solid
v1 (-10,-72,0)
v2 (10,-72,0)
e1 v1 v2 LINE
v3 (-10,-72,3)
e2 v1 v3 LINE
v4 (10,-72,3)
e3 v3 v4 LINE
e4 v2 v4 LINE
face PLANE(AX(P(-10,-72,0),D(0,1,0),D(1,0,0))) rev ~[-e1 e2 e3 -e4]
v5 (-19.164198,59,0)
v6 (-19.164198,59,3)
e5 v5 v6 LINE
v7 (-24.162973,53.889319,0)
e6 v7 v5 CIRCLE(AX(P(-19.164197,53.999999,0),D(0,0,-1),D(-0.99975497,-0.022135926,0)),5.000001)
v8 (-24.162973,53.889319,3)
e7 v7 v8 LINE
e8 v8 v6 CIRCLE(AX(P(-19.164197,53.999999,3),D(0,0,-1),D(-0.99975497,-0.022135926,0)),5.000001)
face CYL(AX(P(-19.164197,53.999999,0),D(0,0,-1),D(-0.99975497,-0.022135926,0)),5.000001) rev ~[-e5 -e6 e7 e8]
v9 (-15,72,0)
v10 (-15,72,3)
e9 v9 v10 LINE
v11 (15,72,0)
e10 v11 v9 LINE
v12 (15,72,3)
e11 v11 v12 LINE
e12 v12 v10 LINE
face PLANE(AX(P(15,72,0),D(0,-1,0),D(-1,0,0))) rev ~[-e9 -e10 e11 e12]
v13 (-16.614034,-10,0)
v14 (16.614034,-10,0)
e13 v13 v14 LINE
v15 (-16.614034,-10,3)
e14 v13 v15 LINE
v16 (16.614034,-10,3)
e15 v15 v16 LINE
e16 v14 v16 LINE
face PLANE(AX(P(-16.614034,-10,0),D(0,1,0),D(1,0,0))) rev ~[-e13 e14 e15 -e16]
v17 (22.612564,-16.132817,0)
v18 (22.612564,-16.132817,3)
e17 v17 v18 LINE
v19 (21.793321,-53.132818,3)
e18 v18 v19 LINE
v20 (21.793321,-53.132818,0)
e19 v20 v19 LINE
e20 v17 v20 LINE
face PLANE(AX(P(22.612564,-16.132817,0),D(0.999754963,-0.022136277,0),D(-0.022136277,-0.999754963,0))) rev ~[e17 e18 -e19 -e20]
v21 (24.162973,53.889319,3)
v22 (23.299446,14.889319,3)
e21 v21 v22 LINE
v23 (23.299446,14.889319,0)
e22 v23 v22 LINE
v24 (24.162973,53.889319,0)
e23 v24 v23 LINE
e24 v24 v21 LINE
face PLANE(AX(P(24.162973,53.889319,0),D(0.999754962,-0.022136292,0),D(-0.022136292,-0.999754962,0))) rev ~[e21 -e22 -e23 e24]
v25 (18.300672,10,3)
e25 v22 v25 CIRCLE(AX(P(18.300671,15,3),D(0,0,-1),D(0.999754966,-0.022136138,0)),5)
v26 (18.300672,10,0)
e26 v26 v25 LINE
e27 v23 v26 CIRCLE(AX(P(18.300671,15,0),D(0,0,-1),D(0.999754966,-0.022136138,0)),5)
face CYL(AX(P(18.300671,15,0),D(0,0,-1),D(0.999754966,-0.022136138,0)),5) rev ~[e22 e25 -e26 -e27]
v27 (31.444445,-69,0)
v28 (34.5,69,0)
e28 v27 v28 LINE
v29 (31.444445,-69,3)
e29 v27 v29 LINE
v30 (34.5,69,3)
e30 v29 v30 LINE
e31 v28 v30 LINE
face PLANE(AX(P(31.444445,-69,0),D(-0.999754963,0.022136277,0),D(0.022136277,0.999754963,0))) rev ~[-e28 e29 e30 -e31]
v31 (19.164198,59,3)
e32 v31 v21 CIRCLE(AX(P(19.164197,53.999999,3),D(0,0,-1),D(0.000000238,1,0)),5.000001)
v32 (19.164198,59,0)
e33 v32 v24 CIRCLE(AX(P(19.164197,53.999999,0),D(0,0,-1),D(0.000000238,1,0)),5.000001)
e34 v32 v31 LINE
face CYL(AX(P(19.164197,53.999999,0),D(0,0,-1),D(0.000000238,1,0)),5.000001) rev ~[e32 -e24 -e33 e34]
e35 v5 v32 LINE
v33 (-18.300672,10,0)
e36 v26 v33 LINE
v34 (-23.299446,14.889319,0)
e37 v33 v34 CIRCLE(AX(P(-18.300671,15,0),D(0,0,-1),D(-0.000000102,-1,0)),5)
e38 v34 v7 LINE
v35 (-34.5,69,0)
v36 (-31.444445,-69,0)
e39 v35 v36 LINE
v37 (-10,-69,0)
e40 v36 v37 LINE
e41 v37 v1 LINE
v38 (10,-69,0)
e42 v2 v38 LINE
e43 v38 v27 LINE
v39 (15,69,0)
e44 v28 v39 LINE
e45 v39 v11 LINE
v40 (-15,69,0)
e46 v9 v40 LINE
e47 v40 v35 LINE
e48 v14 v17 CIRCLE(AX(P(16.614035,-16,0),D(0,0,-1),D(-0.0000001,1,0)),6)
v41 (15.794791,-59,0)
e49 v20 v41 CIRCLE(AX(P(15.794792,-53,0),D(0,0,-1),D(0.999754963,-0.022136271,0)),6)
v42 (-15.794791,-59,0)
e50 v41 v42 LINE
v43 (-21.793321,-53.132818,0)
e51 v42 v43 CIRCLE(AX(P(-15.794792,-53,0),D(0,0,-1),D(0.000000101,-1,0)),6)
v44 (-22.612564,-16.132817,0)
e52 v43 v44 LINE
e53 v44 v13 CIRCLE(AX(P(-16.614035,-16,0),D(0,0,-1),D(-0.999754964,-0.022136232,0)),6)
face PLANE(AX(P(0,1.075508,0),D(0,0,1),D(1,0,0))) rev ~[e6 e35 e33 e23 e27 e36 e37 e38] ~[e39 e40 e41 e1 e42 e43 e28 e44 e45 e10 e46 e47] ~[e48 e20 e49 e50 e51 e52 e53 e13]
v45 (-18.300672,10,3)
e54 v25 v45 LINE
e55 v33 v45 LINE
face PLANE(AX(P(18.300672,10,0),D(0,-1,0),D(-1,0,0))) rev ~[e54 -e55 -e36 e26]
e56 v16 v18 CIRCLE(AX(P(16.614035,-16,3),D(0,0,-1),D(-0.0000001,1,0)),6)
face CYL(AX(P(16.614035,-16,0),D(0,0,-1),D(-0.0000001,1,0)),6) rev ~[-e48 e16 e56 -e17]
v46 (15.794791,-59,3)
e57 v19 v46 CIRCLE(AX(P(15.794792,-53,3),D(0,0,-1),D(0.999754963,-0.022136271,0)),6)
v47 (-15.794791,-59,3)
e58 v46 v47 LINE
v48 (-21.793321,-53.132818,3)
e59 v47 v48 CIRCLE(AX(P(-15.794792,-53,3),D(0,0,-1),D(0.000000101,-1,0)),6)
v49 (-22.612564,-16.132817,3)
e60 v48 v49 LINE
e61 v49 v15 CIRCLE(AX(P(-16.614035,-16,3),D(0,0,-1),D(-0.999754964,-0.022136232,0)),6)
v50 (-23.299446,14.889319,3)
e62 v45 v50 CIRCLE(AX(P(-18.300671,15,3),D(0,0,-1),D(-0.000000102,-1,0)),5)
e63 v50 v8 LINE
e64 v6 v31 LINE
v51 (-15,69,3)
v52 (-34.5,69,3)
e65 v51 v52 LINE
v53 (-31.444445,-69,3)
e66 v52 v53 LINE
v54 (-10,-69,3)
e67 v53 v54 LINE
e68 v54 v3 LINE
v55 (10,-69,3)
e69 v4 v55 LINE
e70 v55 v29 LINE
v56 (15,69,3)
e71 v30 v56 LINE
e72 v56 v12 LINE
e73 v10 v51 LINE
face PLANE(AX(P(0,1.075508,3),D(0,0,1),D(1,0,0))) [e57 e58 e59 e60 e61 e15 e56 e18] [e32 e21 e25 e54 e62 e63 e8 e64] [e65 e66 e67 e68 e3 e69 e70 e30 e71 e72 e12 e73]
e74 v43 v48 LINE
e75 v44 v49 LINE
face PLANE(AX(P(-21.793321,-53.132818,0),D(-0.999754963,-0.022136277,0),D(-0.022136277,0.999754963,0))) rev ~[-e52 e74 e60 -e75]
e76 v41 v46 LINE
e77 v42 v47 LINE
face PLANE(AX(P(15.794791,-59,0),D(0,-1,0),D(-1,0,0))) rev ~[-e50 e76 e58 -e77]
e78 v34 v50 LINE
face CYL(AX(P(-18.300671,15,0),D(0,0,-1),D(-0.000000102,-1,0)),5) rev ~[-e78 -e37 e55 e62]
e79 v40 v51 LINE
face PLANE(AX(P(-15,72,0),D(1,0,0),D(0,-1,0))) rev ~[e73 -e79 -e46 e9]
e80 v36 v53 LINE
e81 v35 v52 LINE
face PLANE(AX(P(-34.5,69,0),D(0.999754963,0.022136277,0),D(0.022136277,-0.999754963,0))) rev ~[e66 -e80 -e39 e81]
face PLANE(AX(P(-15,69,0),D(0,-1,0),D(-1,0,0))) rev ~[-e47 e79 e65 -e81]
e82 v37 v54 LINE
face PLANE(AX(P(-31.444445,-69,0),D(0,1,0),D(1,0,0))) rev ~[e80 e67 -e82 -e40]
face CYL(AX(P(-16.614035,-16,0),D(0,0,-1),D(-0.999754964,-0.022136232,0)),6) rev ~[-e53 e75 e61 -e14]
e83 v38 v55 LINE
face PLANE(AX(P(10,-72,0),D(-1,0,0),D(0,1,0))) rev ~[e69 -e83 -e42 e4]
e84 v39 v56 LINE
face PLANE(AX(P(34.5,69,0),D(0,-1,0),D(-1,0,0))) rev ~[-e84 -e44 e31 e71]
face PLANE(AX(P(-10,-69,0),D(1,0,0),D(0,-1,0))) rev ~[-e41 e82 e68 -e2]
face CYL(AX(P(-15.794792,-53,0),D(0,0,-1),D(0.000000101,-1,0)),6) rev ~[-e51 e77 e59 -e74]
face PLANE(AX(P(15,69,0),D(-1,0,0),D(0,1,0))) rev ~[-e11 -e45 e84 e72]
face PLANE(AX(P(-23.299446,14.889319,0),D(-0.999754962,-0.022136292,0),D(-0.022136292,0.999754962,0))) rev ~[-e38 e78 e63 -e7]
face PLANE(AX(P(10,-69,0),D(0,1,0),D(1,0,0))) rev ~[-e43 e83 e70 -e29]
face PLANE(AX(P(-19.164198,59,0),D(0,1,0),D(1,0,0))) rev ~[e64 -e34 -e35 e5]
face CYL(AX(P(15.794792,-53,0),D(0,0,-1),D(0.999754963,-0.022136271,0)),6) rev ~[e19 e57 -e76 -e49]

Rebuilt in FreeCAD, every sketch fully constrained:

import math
import FreeCAD as App
import Part
import Sketcher
from FreeCAD import Vector
Q = App.Units.Quantity


def add_polygon(sketch, points):
    """Adds a closed chain of lines whose ends are joined by coincident constraints."""
    first, n = sketch.GeometryCount, len(points)
    for a, b in zip(points, points[1:] + points[:1]):
        sketch.addGeometry(Part.LineSegment(App.Vector(*a, 0), App.Vector(*b, 0)), False)
    for i in range(n):
        sketch.addConstraint(Sketcher.Constraint("Coincident", first + i, 2, first + (i + 1) % n, 1))

doc = App.newDocument("Part")
params = doc.addObject("Spreadsheet::Sheet", "Params")
for row, (alias, value) in enumerate([
    ("sketch1_radius", "6 mm"),
    ("sketch1_radius2", "5 mm"),
    ("sketch1_width", "30 mm"),
    ("sketch1_width2", "20 mm"),
    ("sketch1_height", "3 mm"),
    ("pad1_length", "3 mm"),
], start=1):
    params.set(f"A{row}", alias)
    params.set(f"B{row}", "=" + value)
    params.setAlias(f"B{row}", alias)

body = doc.addObject("PartDesign::Body", "Body")

sketch1 = body.newObject("Sketcher::SketchObject", "Sketch")
sketch1.AttachmentSupport = (doc.getObject("XY_Plane"), [""])
sketch1.MapMode = "FlatFace"
add_polygon(sketch1, [(15, 72), (-15, 72), (-15, 69), (-34.5, 69), (-31.4, -69), (-10, -69), (-10, -72), (10, -72), (10, -69), (31.4, -69), (34.5, 69), (15, 69)])
sketch1.addGeometry(Part.LineSegment(Vector(-21.8, -53.1, 0), Vector(-22.6, -16.1, 0)), False)
sketch1.addGeometry(Part.ArcOfCircle(Part.Circle(Vector(-16.6, -16, 0), Vector(0, 0, 1), 6), math.radians(90), math.radians(181)), False)
sketch1.addGeometry(Part.LineSegment(Vector(-16.6, -10, 0), Vector(16.6, -10, 0)), False)
sketch1.addGeometry(Part.ArcOfCircle(Part.Circle(Vector(16.6, -16, 0), Vector(0, 0, 1), 6), math.radians(-1), math.radians(90)), False)
sketch1.addGeometry(Part.LineSegment(Vector(22.6, -16.1, 0), Vector(21.8, -53.1, 0)), False)
sketch1.addGeometry(Part.ArcOfCircle(Part.Circle(Vector(15.8, -53, 0), Vector(0, 0, 1), 6), math.radians(-90), math.radians(-1)), False)
sketch1.addGeometry(Part.LineSegment(Vector(15.8, -59, 0), Vector(-15.8, -59, 0)), False)
sketch1.addGeometry(Part.ArcOfCircle(Part.Circle(Vector(-15.8, -53, 0), Vector(0, 0, 1), 6), math.radians(-179), math.radians(-90)), False)
sketch1.addGeometry(Part.ArcOfCircle(Part.Circle(Vector(18.3, 15, 0), Vector(0, 0, 1), 5), math.radians(-90), math.radians(-1)), False)
sketch1.addGeometry(Part.LineSegment(Vector(18.3, 10, 0), Vector(-18.3, 10, 0)), False)
sketch1.addGeometry(Part.ArcOfCircle(Part.Circle(Vector(-18.3, 15, 0), Vector(0, 0, 1), 5), math.radians(-179), math.radians(-90)), False)
sketch1.addGeometry(Part.LineSegment(Vector(-23.3, 14.9, 0), Vector(-24.2, 53.9, 0)), False)
sketch1.addGeometry(Part.ArcOfCircle(Part.Circle(Vector(-19.2, 54, 0), Vector(0, 0, 1), 5), math.radians(90), math.radians(181)), False)
sketch1.addGeometry(Part.LineSegment(Vector(-19.2, 59, 0), Vector(19.2, 59, 0)), False)
sketch1.addGeometry(Part.ArcOfCircle(Part.Circle(Vector(19.2, 54, 0), Vector(0, 0, 1), 5), math.radians(-1), math.radians(90)), False)
sketch1.addGeometry(Part.LineSegment(Vector(24.2, 53.9, 0), Vector(23.3, 14.9, 0)), False)
sketch1.addConstraint([
    Sketcher.Constraint("Tangent", 12, 2, 13, 2),
    Sketcher.Constraint("Tangent", 13, 1, 14, 1),
    Sketcher.Constraint("Tangent", 14, 2, 15, 2),
    Sketcher.Constraint("Tangent", 15, 1, 16, 1),
    Sketcher.Constraint("Tangent", 16, 2, 17, 2),
    Sketcher.Constraint("Tangent", 17, 1, 18, 1),
    Sketcher.Constraint("Tangent", 18, 2, 19, 2),
    Sketcher.Constraint("Tangent", 19, 1, 12, 1),
    Sketcher.Constraint("Tangent", 20, 1, 21, 1),
    Sketcher.Constraint("Tangent", 21, 2, 22, 2),
    Sketcher.Constraint("Tangent", 22, 1, 23, 1),
    Sketcher.Constraint("Tangent", 23, 2, 24, 2),
    Sketcher.Constraint("Tangent", 24, 1, 25, 1),
    Sketcher.Constraint("Tangent", 25, 2, 26, 2),
    Sketcher.Constraint("Tangent", 26, 1, 27, 1),
    Sketcher.Constraint("Tangent", 27, 2, 20, 2),
    Sketcher.Constraint("Horizontal", 0),
    Sketcher.Constraint("Vertical", 1),
    Sketcher.Constraint("Horizontal", 2),
    Sketcher.Constraint("Horizontal", 4),
    Sketcher.Constraint("Vertical", 5),
    Sketcher.Constraint("Horizontal", 6),
    Sketcher.Constraint("Vertical", 7),
    Sketcher.Constraint("Horizontal", 8),
    Sketcher.Constraint("Horizontal", 10),
    Sketcher.Constraint("Vertical", 11),
    Sketcher.Constraint("Horizontal", 14),
    Sketcher.Constraint("Horizontal", 18),
    Sketcher.Constraint("Horizontal", 21),
    Sketcher.Constraint("Horizontal", 25),
    Sketcher.Constraint("Equal", 13, 15),
    Sketcher.Constraint("Equal", 15, 17),
    Sketcher.Constraint("Equal", 17, 19),
    Sketcher.Constraint("Equal", 20, 22),
    Sketcher.Constraint("Equal", 22, 24),
    Sketcher.Constraint("Equal", 24, 26),
    Sketcher.Constraint("Symmetric", 4, 2, 7, 2, -2),
    Sketcher.Constraint("Symmetric", 2, 2, 9, 2, -2),
    Sketcher.Constraint("Symmetric", 12, 2, 15, 1, -2),
    Sketcher.Constraint("Symmetric", 23, 2, 26, 1, -2),
    Sketcher.Constraint("Parallel", 3, 12),
    Sketcher.Constraint("Parallel", 9, 16),
    Sketcher.Constraint("Parallel", 12, 23),
    Sketcher.Constraint("Equal", 2, 10),
    Sketcher.Constraint("Equal", 1, 5),
    Sketcher.Constraint("Radius", 13, Q("6 mm")),
    Sketcher.Constraint("Radius", 20, Q("5 mm")),
    Sketcher.Constraint("DistanceX", 0, 2, 0, 1, Q("30 mm")),
    Sketcher.Constraint("DistanceX", 6, 1, 6, 2, Q("20 mm")),
    Sketcher.Constraint("DistanceY", 1, 2, 1, 1, Q("3 mm")),
    Sketcher.Constraint("DistanceX", 2, 2, 2, 1, Q("19.5 mm")),
    Sketcher.Constraint("DistanceY", 13, 3, -1, 1, Q("16 mm")),
    Sketcher.Constraint("DistanceY", 17, 3, -1, 1, Q("53 mm")),
    Sketcher.Constraint("DistanceY", -1, 1, 20, 3, Q("15 mm")),
    Sketcher.Constraint("DistanceY", -1, 1, 24, 3, Q("53.999999 mm")),
    Sketcher.Constraint("DistanceY", -1, 1, 0, 2, Q("72 mm")),
    Sketcher.Constraint("DistanceY", 3, 2, -1, 1, Q("69 mm")),
    Sketcher.Constraint("DistanceX", 18, 2, 18, 1, Q("31.589582 mm")),
    Sketcher.Constraint("DistanceX", 12, 2, 15, 3, Q("39.226599 mm")),
    Sketcher.Constraint("DistanceX", 21, 2, 21, 1, Q("36.601344 mm")),
])
sketch1.setExpression("Constraints[57]", "Params.sketch1_radius")
sketch1.setExpression("Constraints[58]", "Params.sketch1_radius2")
sketch1.setExpression("Constraints[59]", "Params.sketch1_width")
sketch1.setExpression("Constraints[60]", "Params.sketch1_width2")
sketch1.setExpression("Constraints[61]", "Params.sketch1_height")
pad1 = body.newObject("PartDesign::Pad", "Pad")
pad1.Profile = sketch1
pad1.setExpression("Length", "Params.pad1_length")

doc.recompute()
